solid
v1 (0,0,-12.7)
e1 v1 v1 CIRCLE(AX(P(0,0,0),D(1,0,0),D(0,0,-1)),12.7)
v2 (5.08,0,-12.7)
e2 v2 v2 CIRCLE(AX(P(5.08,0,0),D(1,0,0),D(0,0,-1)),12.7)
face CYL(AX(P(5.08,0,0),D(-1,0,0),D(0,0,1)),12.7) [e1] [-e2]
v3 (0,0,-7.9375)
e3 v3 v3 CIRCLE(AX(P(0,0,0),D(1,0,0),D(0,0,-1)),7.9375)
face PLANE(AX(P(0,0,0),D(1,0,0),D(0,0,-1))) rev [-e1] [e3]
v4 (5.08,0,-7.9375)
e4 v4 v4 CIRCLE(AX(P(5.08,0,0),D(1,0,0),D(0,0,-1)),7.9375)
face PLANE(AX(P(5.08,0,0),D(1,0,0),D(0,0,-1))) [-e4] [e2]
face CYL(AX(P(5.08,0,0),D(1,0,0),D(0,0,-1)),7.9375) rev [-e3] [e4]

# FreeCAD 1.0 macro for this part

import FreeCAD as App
import Part
import Sketcher
Q = App.Units.Quantity

doc = App.newDocument("Part")
body = doc.addObject("PartDesign::Body", "Body")

# Sketch on YZ plane
sketch1 = doc.addObject("Sketcher::SketchObject", "Sketch")
body.addObject(sketch1)
sketch1.AttachmentSupport = (doc.YZ_Plane, [""])
sketch1.MapMode = "FlatFace"
sketch1.addGeometry(Part.Circle(App.Vector(0, 0, 0), App.Vector(0, 0, 1), 13), False)
sketch1.addConstraint(Sketcher.Constraint("Coincident", 0, 3, -1, 1))
sketch1.addConstraint(Sketcher.Constraint("Diameter", 0, Q("1 in")))
pad1 = doc.addObject("PartDesign::Pad", "Pad")
body.addObject(pad1)
pad1.Profile = sketch1
pad1.Length = Q("0.2 in")

# Sketch on YZ plane
sketch2 = doc.addObject("Sketcher::SketchObject", "Sketch001")
body.addObject(sketch2)
sketch2.AttachmentSupport = (doc.YZ_Plane, [""])
sketch2.MapMode = "FlatFace"
sketch2.AttachmentOffset = App.Placement(App.Vector(0, 0, 0.2 * 25.4), App.Rotation())
sketch2.addGeometry(Part.Circle(App.Vector(0, 0, 0), App.Vector(0, 0, 1), 8), False)
sketch2.addConstraint(Sketcher.Constraint("Coincident", 0, 3, -1, 1))
sketch2.addConstraint(Sketcher.Constraint("Diameter", 0, Q("0.625 in")))
doc.recompute()
hole = doc.addObject("PartDesign::Hole", "Hole")
body.addObject(hole)
hole.Profile = sketch2
hole.ThreadType = "None"
hole.Diameter = Q("0.625 in")
hole.DepthType = "ThroughAll"

doc.recompute()
